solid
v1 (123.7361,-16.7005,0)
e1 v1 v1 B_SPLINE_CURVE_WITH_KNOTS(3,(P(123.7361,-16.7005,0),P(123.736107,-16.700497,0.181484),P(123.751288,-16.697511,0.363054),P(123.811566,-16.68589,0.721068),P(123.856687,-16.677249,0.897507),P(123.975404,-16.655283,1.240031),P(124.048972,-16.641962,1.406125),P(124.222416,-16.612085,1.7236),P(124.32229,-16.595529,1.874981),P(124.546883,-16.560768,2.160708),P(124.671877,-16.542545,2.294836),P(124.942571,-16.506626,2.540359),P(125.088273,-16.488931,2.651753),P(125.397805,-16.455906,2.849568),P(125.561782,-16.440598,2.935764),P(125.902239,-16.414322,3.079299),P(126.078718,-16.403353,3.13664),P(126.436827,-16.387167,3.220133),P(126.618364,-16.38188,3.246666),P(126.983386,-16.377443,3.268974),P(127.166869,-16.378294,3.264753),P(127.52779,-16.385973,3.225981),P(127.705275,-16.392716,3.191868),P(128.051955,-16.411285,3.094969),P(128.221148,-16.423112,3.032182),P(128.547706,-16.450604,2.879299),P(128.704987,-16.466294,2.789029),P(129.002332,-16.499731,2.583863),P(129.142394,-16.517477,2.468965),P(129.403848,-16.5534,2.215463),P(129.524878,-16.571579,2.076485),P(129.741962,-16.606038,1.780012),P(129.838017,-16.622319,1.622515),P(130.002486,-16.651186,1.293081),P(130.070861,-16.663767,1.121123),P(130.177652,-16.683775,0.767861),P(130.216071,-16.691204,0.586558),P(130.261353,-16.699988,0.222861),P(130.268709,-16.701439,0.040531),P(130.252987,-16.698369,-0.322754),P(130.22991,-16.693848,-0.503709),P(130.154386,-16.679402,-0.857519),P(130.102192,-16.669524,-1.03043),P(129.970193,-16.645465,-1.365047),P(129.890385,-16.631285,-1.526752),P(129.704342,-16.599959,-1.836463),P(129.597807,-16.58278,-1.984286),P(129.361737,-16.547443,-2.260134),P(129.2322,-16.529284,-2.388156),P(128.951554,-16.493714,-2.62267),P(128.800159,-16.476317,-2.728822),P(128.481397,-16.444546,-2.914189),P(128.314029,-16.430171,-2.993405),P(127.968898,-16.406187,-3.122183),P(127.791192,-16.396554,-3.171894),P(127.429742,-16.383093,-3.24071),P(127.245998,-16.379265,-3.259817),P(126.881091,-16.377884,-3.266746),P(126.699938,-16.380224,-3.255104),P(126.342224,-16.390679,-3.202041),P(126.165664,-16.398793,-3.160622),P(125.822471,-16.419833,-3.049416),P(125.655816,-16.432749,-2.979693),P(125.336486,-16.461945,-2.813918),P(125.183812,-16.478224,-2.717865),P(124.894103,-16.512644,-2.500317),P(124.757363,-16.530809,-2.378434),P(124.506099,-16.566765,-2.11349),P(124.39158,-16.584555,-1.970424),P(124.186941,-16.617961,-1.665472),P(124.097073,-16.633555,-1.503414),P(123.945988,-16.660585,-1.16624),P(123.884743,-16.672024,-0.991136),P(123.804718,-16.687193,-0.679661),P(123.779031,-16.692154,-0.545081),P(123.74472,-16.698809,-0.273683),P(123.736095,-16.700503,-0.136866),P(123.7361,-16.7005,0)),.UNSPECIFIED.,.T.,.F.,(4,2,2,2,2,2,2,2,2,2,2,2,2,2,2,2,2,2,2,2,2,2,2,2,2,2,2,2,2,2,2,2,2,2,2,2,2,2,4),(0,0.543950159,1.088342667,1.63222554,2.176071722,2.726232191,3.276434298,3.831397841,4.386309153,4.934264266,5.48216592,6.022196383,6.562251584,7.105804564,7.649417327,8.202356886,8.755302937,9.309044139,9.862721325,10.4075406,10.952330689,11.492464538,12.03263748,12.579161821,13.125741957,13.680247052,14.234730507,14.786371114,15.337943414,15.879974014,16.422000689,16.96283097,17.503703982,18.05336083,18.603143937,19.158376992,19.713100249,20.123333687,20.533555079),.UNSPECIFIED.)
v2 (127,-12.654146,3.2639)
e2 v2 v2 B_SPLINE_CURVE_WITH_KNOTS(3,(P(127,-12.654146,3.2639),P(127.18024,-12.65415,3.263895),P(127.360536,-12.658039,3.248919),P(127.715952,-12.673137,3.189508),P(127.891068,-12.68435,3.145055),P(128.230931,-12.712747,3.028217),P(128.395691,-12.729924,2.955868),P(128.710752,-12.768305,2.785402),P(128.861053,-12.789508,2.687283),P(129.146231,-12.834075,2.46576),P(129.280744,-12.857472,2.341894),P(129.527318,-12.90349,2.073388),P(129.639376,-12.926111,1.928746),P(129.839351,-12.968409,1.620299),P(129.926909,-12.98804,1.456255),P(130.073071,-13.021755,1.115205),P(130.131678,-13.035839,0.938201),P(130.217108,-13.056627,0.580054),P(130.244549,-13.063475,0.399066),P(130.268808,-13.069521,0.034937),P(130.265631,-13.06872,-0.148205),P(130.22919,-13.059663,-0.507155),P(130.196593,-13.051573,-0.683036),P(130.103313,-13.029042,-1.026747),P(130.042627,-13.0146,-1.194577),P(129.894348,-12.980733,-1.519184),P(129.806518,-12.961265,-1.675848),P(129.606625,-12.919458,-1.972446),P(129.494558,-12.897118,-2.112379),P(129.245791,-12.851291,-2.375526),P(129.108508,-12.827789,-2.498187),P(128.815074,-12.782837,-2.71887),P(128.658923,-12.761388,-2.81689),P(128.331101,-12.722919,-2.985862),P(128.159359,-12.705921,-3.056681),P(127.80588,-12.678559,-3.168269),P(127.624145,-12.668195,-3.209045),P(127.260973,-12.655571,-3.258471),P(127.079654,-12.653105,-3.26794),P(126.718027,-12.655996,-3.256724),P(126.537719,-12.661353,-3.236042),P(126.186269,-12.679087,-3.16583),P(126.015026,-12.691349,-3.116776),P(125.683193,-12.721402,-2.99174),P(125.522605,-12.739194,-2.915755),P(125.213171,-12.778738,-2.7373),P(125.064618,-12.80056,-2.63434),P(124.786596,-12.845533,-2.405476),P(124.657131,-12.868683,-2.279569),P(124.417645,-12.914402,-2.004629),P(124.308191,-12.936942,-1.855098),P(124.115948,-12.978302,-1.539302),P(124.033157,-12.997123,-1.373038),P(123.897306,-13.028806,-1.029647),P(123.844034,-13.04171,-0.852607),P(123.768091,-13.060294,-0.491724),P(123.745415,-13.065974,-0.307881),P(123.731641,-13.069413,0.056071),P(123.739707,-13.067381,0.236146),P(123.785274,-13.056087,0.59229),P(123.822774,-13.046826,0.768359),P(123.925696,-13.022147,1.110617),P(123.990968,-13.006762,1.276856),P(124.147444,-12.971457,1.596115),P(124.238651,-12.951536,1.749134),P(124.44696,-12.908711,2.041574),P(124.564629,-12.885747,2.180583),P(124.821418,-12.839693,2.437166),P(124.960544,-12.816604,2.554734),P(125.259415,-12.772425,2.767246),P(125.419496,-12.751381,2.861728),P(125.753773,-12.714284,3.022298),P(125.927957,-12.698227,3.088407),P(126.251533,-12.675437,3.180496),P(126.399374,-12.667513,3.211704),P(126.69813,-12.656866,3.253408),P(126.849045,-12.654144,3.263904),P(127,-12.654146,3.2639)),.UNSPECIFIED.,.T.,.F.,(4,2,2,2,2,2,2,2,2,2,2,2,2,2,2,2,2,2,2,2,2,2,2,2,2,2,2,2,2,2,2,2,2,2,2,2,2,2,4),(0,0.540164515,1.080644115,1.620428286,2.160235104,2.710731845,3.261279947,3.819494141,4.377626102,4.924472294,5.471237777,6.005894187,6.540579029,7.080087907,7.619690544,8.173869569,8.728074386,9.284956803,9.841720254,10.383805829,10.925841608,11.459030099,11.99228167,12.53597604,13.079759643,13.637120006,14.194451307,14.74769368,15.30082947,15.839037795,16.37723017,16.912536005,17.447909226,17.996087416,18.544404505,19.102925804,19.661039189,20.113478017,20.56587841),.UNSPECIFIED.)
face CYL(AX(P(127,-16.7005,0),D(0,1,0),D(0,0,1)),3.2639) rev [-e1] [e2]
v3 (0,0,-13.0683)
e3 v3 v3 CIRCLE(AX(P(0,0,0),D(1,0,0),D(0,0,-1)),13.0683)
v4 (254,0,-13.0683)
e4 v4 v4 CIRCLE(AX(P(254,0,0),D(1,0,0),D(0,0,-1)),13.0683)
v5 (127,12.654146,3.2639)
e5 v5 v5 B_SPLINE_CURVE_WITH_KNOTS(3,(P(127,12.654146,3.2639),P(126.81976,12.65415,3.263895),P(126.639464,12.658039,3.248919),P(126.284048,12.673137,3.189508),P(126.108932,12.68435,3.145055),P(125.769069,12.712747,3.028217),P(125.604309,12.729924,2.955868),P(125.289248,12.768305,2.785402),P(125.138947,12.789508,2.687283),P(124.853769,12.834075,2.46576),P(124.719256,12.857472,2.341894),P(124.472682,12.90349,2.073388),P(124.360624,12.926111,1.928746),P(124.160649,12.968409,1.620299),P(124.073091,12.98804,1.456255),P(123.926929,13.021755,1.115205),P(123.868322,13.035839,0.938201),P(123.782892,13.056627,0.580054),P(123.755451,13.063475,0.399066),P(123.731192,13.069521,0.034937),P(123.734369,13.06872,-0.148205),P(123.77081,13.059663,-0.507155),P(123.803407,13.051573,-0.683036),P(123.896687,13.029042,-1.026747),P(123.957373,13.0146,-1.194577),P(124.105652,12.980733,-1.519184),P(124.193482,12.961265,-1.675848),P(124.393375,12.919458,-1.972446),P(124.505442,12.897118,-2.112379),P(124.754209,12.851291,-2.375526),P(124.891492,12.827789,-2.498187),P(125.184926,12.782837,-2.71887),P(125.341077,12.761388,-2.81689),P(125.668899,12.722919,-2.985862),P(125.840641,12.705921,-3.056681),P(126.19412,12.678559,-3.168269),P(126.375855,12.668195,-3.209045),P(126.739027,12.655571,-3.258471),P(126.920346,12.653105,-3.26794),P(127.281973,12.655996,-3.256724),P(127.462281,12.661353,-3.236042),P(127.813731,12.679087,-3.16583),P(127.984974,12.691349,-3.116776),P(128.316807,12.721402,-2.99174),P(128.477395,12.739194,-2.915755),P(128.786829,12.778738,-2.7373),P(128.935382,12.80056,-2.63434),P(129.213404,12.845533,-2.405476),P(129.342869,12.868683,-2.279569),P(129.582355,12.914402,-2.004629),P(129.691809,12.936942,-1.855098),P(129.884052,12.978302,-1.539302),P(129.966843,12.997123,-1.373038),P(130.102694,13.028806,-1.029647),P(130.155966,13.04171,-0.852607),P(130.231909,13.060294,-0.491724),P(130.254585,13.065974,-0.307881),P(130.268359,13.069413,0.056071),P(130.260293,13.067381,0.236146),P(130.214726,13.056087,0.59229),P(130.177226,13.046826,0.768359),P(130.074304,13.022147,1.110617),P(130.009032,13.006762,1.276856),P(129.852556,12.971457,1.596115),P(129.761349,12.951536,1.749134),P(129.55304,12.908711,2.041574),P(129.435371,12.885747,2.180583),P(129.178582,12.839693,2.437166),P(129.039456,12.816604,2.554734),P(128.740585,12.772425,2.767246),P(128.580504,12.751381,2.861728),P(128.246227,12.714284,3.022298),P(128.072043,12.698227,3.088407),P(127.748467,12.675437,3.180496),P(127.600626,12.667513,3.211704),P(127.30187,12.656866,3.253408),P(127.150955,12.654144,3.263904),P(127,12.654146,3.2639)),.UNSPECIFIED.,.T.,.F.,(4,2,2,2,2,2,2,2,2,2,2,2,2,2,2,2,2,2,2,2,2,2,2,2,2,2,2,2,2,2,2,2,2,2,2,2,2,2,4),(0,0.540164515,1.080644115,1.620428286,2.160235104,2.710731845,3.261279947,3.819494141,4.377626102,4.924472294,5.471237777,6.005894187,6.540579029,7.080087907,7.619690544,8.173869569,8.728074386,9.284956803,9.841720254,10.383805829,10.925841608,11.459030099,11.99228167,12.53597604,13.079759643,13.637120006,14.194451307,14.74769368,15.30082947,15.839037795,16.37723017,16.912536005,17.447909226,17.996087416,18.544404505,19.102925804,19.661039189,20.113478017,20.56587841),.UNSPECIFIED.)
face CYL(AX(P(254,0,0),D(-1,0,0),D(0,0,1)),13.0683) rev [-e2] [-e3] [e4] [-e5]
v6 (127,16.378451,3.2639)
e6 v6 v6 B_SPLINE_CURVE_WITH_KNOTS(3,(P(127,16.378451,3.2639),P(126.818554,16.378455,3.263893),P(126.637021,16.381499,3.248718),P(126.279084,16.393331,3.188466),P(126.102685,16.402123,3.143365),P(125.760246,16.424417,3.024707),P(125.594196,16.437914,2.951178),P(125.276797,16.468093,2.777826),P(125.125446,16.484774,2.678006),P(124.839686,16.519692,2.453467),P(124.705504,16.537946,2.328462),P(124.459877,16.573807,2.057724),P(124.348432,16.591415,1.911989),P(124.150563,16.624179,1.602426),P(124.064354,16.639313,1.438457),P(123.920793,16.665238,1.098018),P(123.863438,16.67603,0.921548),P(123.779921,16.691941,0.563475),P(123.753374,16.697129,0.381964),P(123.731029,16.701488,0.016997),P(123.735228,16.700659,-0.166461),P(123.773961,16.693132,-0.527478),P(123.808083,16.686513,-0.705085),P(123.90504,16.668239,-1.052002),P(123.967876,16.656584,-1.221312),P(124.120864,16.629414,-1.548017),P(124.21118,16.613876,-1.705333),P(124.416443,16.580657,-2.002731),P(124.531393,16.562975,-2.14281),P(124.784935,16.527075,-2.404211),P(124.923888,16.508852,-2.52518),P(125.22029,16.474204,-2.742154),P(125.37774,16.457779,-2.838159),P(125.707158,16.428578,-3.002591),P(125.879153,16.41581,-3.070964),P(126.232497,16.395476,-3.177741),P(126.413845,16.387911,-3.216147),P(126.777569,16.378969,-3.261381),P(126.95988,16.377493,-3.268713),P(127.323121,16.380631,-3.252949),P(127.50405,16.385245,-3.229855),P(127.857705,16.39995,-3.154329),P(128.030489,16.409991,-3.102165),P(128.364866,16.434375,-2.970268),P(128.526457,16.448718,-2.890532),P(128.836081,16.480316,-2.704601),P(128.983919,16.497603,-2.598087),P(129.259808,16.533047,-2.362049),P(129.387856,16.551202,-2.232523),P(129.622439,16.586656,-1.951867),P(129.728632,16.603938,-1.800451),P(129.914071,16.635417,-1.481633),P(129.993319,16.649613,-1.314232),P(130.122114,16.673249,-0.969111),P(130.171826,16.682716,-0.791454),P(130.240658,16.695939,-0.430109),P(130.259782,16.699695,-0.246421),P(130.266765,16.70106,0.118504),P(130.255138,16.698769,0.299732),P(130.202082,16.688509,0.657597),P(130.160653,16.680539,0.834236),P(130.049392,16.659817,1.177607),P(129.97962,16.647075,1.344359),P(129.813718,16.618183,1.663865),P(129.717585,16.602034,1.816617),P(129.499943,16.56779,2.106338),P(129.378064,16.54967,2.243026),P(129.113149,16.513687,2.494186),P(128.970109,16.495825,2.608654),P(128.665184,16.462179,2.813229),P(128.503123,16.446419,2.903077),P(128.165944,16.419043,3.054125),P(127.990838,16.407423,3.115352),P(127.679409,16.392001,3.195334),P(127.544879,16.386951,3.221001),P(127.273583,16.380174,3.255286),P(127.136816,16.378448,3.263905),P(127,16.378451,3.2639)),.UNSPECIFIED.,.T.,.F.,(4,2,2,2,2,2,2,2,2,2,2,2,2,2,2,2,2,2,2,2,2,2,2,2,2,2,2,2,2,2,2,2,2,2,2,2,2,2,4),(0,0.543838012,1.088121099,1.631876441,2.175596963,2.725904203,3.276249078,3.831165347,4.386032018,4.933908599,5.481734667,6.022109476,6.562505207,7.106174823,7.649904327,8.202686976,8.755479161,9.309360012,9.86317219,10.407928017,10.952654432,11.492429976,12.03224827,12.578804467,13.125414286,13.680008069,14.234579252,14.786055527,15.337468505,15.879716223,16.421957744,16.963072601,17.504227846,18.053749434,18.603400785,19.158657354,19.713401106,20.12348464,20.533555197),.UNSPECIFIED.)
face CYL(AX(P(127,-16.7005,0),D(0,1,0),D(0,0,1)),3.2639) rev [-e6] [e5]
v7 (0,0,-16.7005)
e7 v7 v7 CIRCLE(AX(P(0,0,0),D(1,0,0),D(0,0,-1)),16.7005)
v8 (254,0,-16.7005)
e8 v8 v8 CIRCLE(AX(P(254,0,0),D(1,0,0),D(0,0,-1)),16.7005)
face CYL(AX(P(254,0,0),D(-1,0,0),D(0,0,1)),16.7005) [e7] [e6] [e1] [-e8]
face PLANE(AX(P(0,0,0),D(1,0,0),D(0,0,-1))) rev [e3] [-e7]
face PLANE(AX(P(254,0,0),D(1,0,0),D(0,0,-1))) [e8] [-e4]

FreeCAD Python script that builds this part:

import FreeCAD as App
import Part
import Sketcher
from FreeCAD import Vector
Q = App.Units.Quantity

doc = App.newDocument("Part")
body = doc.addObject("PartDesign::Body", "Body")

# Sketch on YZ plane
sketch1 = doc.addObject("Sketcher::SketchObject", "Sketch")
body.addObject(sketch1)
sketch1.AttachmentSupport = (doc.YZ_Plane, [""])
sketch1.MapMode = "FlatFace"
sketch1.addGeometry([
    Part.Circle(Vector(0, 0, 0), Vector(0, 0, 1), 17),
    Part.Circle(Vector(0, 0, 0), Vector(0, 0, 1), 13),
], False)
sketch1.addConstraint([
    Sketcher.Constraint("Coincident", 0, 3, -1, 1),
    Sketcher.Constraint("Coincident", 1, 3, -1, 1),
    Sketcher.Constraint("Diameter", 0, Q("1.315 in")),
    Sketcher.Constraint("Diameter", 1, Q("1.029 in")),
])
pad1 = doc.addObject("PartDesign::Pad", "Pad")
body.addObject(pad1)
pad1.Profile = sketch1
pad1.Length = Q("10 in")

# Sketch on XZ plane
sketch2 = doc.addObject("Sketcher::SketchObject", "Sketch001")
body.addObject(sketch2)
sketch2.AttachmentSupport = (doc.XZ_Plane, [""])
sketch2.MapMode = "FlatFace"
sketch2.addGeometry(Part.Circle(Vector(127, 0, 0), Vector(0, 0, 1), 3.3), False)
sketch2.addConstraint([
    Sketcher.Constraint("PointOnObject", 0, 3, -1),
    Sketcher.Constraint("Diameter", 0, Q("0.257 in")),
    Sketcher.Constraint("DistanceX", -1, 1, 0, 3, Q("5 in")),
])
pocket1 = doc.addObject("PartDesign::Pocket", "Pocket")
body.addObject(pocket1)
pocket1.Profile = sketch2
pocket1.Type = "ThroughAll"
pocket1.Midplane = True

doc.recompute()
